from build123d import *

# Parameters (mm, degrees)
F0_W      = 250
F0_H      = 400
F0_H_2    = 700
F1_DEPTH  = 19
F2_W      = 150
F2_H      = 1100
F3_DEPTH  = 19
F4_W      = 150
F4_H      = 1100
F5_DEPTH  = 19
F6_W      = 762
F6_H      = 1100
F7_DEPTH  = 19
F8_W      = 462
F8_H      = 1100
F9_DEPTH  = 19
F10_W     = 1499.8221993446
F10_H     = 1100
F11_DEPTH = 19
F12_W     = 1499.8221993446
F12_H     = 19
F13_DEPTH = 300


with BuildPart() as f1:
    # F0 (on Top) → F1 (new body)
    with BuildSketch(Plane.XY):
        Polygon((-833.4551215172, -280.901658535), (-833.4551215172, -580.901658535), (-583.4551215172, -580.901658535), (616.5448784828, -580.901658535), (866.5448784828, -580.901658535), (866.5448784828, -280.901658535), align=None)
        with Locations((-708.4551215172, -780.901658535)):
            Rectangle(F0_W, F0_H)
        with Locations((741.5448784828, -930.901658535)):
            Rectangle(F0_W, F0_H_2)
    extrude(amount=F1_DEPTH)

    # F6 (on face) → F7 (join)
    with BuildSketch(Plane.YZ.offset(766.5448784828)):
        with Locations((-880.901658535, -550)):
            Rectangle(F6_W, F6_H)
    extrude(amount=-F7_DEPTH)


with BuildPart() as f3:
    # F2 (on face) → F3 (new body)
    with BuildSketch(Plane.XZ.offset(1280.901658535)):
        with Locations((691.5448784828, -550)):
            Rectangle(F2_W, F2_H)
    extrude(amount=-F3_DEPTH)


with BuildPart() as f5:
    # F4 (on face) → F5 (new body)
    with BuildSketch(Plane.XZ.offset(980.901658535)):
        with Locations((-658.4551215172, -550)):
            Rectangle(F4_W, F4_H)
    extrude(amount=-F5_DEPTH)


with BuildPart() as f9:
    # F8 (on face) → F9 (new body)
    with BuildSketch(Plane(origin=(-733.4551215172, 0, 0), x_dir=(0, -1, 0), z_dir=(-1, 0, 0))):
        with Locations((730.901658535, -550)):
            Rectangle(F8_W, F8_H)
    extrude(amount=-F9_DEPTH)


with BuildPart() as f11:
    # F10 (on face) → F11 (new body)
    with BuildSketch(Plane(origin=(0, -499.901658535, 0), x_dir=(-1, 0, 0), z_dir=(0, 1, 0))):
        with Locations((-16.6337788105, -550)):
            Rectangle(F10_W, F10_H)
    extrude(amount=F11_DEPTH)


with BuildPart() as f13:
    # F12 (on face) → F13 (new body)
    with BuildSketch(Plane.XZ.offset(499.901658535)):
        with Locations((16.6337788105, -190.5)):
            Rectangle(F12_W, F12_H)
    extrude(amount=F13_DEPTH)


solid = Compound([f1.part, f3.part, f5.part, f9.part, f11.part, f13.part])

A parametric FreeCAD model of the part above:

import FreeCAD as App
import Part
import Sketcher

V = App.Vector
Q = App.Units.Quantity


def add_polygon(sketch, points):
    """Adds a closed chain of lines whose ends are joined by coincident constraints."""
    first, n = sketch.GeometryCount, len(points)
    for a, b in zip(points, points[1:] + points[:1]):
        sketch.addGeometry(Part.LineSegment(App.Vector(*a, 0), App.Vector(*b, 0)), False)
    for i in range(n):
        sketch.addConstraint(Sketcher.Constraint("Coincident", first + i, 2, first + (i + 1) % n, 1))

doc = App.newDocument("Part")
body = doc.addObject("PartDesign::Body", "Body")

# Sketch on XY plane
sketch1 = body.newObject("Sketcher::SketchObject", "Sketch")
sketch1.AttachmentSupport = (doc.getObject("XY_Plane"), [""])
sketch1.MapMode = "FlatFace"
add_polygon(sketch1, [(-833, -281), (-833, -981), (-583, -981), (-583, -581), (617, -581), (617, -1281), (867, -1281), (867, -281)])  # lines 0-7
sketch1.addConstraint(Sketcher.Constraint("Vertical", 0))
sketch1.addConstraint(Sketcher.Constraint("Horizontal", 1))
sketch1.addConstraint(Sketcher.Constraint("Vertical", 2))
sketch1.addConstraint(Sketcher.Constraint("Horizontal", 3))
sketch1.addConstraint(Sketcher.Constraint("Vertical", 4))
sketch1.addConstraint(Sketcher.Constraint("Horizontal", 5))
sketch1.addConstraint(Sketcher.Constraint("Vertical", 6))
sketch1.addConstraint(Sketcher.Constraint("Horizontal", 7))
sketch1.addConstraint(Sketcher.Constraint("Equal", 1, 5))
sketch1.addConstraint(Sketcher.Constraint("Equal", 0, 4))
sketch1.addConstraint(Sketcher.Constraint("DistanceX", 1, 1, 1, 2, Q("250 mm")))
sketch1.addConstraint(Sketcher.Constraint("DistanceX", 3, 1, 3, 2, Q("1200 mm")))
sketch1.addConstraint(Sketcher.Constraint("DistanceY", 0, 2, 0, 1, Q("700 mm")))
sketch1.addConstraint(Sketcher.Constraint("DistanceY", 2, 1, 2, 2, Q("400 mm")))
sketch1.addConstraint(Sketcher.Constraint("DistanceX", 0, 2, -1, 1, Q("833.455122 mm")))
sketch1.addConstraint(Sketcher.Constraint("DistanceY", 0, 2, -1, 1, Q("980.901659 mm")))
pad1 = body.newObject("PartDesign::Pad", "Pad")
pad1.Profile = sketch1
pad1.Length = 19

# Sketch on YZ plane
sketch2 = body.newObject("Sketcher::SketchObject", "Sketch001")
sketch2.AttachmentSupport = (doc.getObject("YZ_Plane"), [""])
sketch2.MapMode = "FlatFace"
sketch2.AttachmentOffset = App.Placement(V(0, 0, 766.544878), App.Rotation())
add_polygon(sketch2, [(-1262, 0), (-1262, -1100), (-500, -1100), (-500, 0)])  # lines 0-3
sketch2.addConstraint(Sketcher.Constraint("Vertical", 0))
sketch2.addConstraint(Sketcher.Constraint("Horizontal", 1))
sketch2.addConstraint(Sketcher.Constraint("Vertical", 2))
sketch2.addConstraint(Sketcher.Constraint("Horizontal", 3))
sketch2.addConstraint(Sketcher.Constraint("PointOnObject", 2, 2, -1))
sketch2.addConstraint(Sketcher.Constraint("DistanceX", 1, 1, 1, 2, Q("762 mm")))
sketch2.addConstraint(Sketcher.Constraint("DistanceY", 0, 2, 0, 1, Q("1100 mm")))
sketch2.addConstraint(Sketcher.Constraint("DistanceX", 0, 2, -1, 1, Q("1261.901659 mm")))
pad2 = body.newObject("PartDesign::Pad", "Pad001")
pad2.Profile = sketch2
pad2.Length = 19
pad2.Reversed = True
body2 = doc.addObject("PartDesign::Body", "Body001")

# Sketch on XZ plane
sketch3 = body2.newObject("Sketcher::SketchObject", "Sketch002")
sketch3.AttachmentSupport = (doc.getObject("XZ_Plane001"), [""])
sketch3.MapMode = "FlatFace"
sketch3.AttachmentOffset = App.Placement(V(0, 0, 1280.901659), App.Rotation())
add_polygon(sketch3, [(617, 0), (617, -1100), (767, -1100), (767, 0)])  # lines 0-3
sketch3.addConstraint(Sketcher.Constraint("Vertical", 0))
sketch3.addConstraint(Sketcher.Constraint("Horizontal", 1))
sketch3.addConstraint(Sketcher.Constraint("Vertical", 2))
sketch3.addConstraint(Sketcher.Constraint("Horizontal", 3))
sketch3.addConstraint(Sketcher.Constraint("PointOnObject", 2, 2, -1))
sketch3.addConstraint(Sketcher.Constraint("DistanceX", 1, 1, 1, 2, Q("150 mm")))
sketch3.addConstraint(Sketcher.Constraint("DistanceY", 0, 2, 0, 1, Q("1100 mm")))
sketch3.addConstraint(Sketcher.Constraint("DistanceX", -1, 1, 0, 2, Q("616.544878 mm")))
pad3 = body2.newObject("PartDesign::Pad", "Pad002")
pad3.Profile = sketch3
pad3.Length = 19
pad3.Reversed = True
body3 = doc.addObject("PartDesign::Body", "Body002")

# Sketch on XZ plane
sketch4 = body3.newObject("Sketcher::SketchObject", "Sketch003")
sketch4.AttachmentSupport = (doc.getObject("XZ_Plane002"), [""])
sketch4.MapMode = "FlatFace"
sketch4.AttachmentOffset = App.Placement(V(0, 0, 980.901659), App.Rotation())
add_polygon(sketch4, [(-733, 0), (-733, -1100), (-583, -1100), (-583, 0)])  # lines 0-3
sketch4.addConstraint(Sketcher.Constraint("Vertical", 0))
sketch4.addConstraint(Sketcher.Constraint("Horizontal", 1))
sketch4.addConstraint(Sketcher.Constraint("Vertical", 2))
sketch4.addConstraint(Sketcher.Constraint("Horizontal", 3))
sketch4.addConstraint(Sketcher.Constraint("PointOnObject", 2, 2, -1))
sketch4.addConstraint(Sketcher.Constraint("DistanceX", 1, 1, 1, 2, Q("150 mm")))
sketch4.addConstraint(Sketcher.Constraint("DistanceY", 0, 2, 0, 1, Q("1100 mm")))
sketch4.addConstraint(Sketcher.Constraint("DistanceX", 0, 2, -1, 1, Q("733.455122 mm")))
pad4 = body3.newObject("PartDesign::Pad", "Pad003")
pad4.Profile = sketch4
pad4.Length = 19
pad4.Reversed = True
body4 = doc.addObject("PartDesign::Body", "Body003")

# Sketch on YZ plane
sketch5 = body4.newObject("Sketcher::SketchObject", "Sketch004")
sketch5.AttachmentSupport = (doc.getObject("YZ_Plane003"), [""])
sketch5.MapMode = "FlatFace"
sketch5.AttachmentOffset = App.Placement(V(0, 0, -733.455122), App.Rotation())
add_polygon(sketch5, [(-500, 0), (-500, -1100), (-962, -1100), (-962, 0)])  # lines 0-3
sketch5.addConstraint(Sketcher.Constraint("Vertical", 0))
sketch5.addConstraint(Sketcher.Constraint("Horizontal", 1))
sketch5.addConstraint(Sketcher.Constraint("Vertical", 2))
sketch5.addConstraint(Sketcher.Constraint("Horizontal", 3))
sketch5.addConstraint(Sketcher.Constraint("PointOnObject", 2, 2, -1))
sketch5.addConstraint(Sketcher.Constraint("DistanceX", 1, 2, 1, 1, Q("462 mm")))
sketch5.addConstraint(Sketcher.Constraint("DistanceY", 0, 2, 0, 1, Q("1100 mm")))
sketch5.addConstraint(Sketcher.Constraint("DistanceX", 0, 2, -1, 1, Q("499.901659 mm")))
pad5 = body4.newObject("PartDesign::Pad", "Pad004")
pad5.Profile = sketch5
pad5.Length = 19
body5 = doc.addObject("PartDesign::Body", "Body004")

# Sketch on XZ plane
sketch6 = body5.newObject("Sketcher::SketchObject", "Sketch005")
sketch6.AttachmentSupport = (doc.getObject("XZ_Plane004"), [""])
sketch6.MapMode = "FlatFace"
sketch6.AttachmentOffset = App.Placement(V(0, 0, 499.901659), App.Rotation())
add_polygon(sketch6, [(767, 0), (767, -1100), (-733, -1100), (-733, 0)])  # lines 0-3
sketch6.addConstraint(Sketcher.Constraint("Vertical", 0))
sketch6.addConstraint(Sketcher.Constraint("Horizontal", 1))
sketch6.addConstraint(Sketcher.Constraint("Vertical", 2))
sketch6.addConstraint(Sketcher.Constraint("Horizontal", 3))
sketch6.addConstraint(Sketcher.Constraint("PointOnObject", 2, 2, -1))
sketch6.addConstraint(Sketcher.Constraint("DistanceY", 0, 2, 0, 1, Q("1100 mm")))
sketch6.addConstraint(Sketcher.Constraint("DistanceX", 1, 2, 1, 1, Q("1499.822199 mm")))
sketch6.addConstraint(Sketcher.Constraint("DistanceX", -1, 1, 0, 2, Q("766.544878 mm")))
pad6 = body5.newObject("PartDesign::Pad", "Pad005")
pad6.Profile = sketch6
pad6.Length = 19
pad6.Reversed = True
body6 = doc.addObject("PartDesign::Body", "Body005")

# Sketch on XZ plane
sketch7 = body6.newObject("Sketcher::SketchObject", "Sketch006")
sketch7.AttachmentSupport = (doc.getObject("XZ_Plane005"), [""])
sketch7.MapMode = "FlatFace"
sketch7.AttachmentOffset = App.Placement(V(0, 0, 499.901659), App.Rotation())
add_polygon(sketch7, [(-733, -181), (-733, -200), (767, -200), (767, -181)])  # lines 0-3
sketch7.addConstraint(Sketcher.Constraint("Vertical", 0))
sketch7.addConstraint(Sketcher.Constraint("Horizontal", 1))
sketch7.addConstraint(Sketcher.Constraint("Vertical", 2))
sketch7.addConstraint(Sketcher.Constraint("Horizontal", 3))
sketch7.addConstraint(Sketcher.Constraint("DistanceY", 0, 2, 0, 1, Q("19 mm")))
sketch7.addConstraint(Sketcher.Constraint("DistanceY", 0, 2, -1, 1, Q("200 mm")))
sketch7.addConstraint(Sketcher.Constraint("DistanceX", 1, 1, 1, 2, Q("1499.822199 mm")))
sketch7.addConstraint(Sketcher.Constraint("DistanceX", 0, 2, -1, 1, Q("733.277321 mm")))
pad7 = body6.newObject("PartDesign::Pad", "Pad006")
pad7.Profile = sketch7
pad7.Length = 300

doc.recompute()
